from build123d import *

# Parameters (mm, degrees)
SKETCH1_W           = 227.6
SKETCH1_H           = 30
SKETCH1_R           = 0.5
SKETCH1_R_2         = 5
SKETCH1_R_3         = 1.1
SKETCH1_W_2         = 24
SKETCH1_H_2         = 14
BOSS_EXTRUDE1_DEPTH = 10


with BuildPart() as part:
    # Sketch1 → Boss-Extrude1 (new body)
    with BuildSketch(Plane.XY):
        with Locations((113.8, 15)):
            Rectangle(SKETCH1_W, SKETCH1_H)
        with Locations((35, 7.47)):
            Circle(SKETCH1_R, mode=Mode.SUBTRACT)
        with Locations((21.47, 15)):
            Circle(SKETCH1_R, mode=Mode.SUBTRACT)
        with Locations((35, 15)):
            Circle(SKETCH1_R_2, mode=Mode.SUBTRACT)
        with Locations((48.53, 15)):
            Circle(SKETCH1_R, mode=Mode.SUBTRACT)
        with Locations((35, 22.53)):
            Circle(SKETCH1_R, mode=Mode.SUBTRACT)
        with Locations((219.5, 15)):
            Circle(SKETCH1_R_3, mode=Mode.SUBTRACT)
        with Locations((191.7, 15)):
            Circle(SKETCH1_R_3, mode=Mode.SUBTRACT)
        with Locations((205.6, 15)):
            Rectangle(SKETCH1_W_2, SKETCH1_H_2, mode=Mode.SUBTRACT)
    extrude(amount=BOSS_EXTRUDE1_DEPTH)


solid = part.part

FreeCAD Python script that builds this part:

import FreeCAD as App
import Part
import Sketcher


def add_polygon(sketch, points):
    """Adds a closed chain of lines whose ends are joined by coincident constraints."""
    first, n = sketch.GeometryCount, len(points)
    for a, b in zip(points, points[1:] + points[:1]):
        sketch.addGeometry(Part.LineSegment(App.Vector(*a, 0), App.Vector(*b, 0)), False)
    for i in range(n):
        sketch.addConstraint(Sketcher.Constraint("Coincident", first + i, 2, first + (i + 1) % n, 1))

doc = App.newDocument("Part")
body = doc.addObject("PartDesign::Body", "Body")

sketch1 = body.newObject("Sketcher::SketchObject", "Sketch")
sketch1.AttachmentSupport = (doc.getObject("XY_Plane"), [""])
sketch1.MapMode = "FlatFace"
add_polygon(sketch1, [(0, 30), (0, 0), (227.6, 0), (227.6, 30)])
sketch1.addGeometry(Part.Circle(App.Vector(35, 7.5, 0), App.Vector(0, 0, 1), 0.5), False)
sketch1.addGeometry(Part.Circle(App.Vector(21.5, 15, 0), App.Vector(0, 0, 1), 0.5), False)
sketch1.addGeometry(Part.Circle(App.Vector(35, 15, 0), App.Vector(0, 0, 1), 5), False)
sketch1.addGeometry(Part.Circle(App.Vector(48.5, 15, 0), App.Vector(0, 0, 1), 0.5), False)
sketch1.addGeometry(Part.Circle(App.Vector(35, 22.5, 0), App.Vector(0, 0, 1), 0.5), False)
sketch1.addGeometry(Part.Circle(App.Vector(191.7, 15, 0), App.Vector(0, 0, 1), 1.1), False)
add_polygon(sketch1, [(217.6, 8), (193.6, 8), (193.6, 22), (217.6, 22)])
sketch1.addGeometry(Part.Circle(App.Vector(219.5, 15, 0), App.Vector(0, 0, 1), 1.1), False)
sketch1.addConstraint([
    Sketcher.Constraint("Vertical", 0),
    Sketcher.Constraint("Horizontal", 1),
    Sketcher.Constraint("Vertical", 2),
    Sketcher.Constraint("Horizontal", 3),
    Sketcher.Constraint("Horizontal", 10),
    Sketcher.Constraint("Vertical", 11),
    Sketcher.Constraint("Horizontal", 12),
    Sketcher.Constraint("Vertical", 13),
    Sketcher.Constraint("Coincident", 0, 2, -1, 1),
    Sketcher.Constraint("Equal", 4, 5),
    Sketcher.Constraint("Equal", 5, 7),
    Sketcher.Constraint("Equal", 7, 8),
    Sketcher.Constraint("Equal", 9, 14),
    Sketcher.Constraint("Horizontal", 5, 3, 6, 3),
    Sketcher.Constraint("Horizontal", 6, 3, 7, 3),
    Sketcher.Constraint("Horizontal", 7, 3, 9, 3),
    Sketcher.Constraint("Horizontal", 9, 3, 14, 3),
    Sketcher.Constraint("Vertical", 4, 3, 6, 3),
    Sketcher.Constraint("Vertical", 6, 3, 8, 3),
    Sketcher.Constraint("Diameter", 4, 1.0),
    Sketcher.Constraint("Diameter", 6, 10.0),
    Sketcher.Constraint("Diameter", 9, 2.2),
    Sketcher.Constraint("DistanceX", 10, 2, 10, 1, 24.0),
    Sketcher.Constraint("DistanceY", 0, 2, 0, 1, 30.0),
    Sketcher.Constraint("DistanceY", 11, 1, 11, 2, 14.0),
    Sketcher.Constraint("DistanceX", 1, 1, 1, 2, 227.6),
    Sketcher.Constraint("DistanceX", -1, 1, 4, 3, 35.0),
    Sketcher.Constraint("DistanceY", -1, 1, 5, 3, 15.0),
    Sketcher.Constraint("DistanceY", -1, 1, 10, 2, 8.0),
    Sketcher.Constraint("DistanceX", 10, 2, 1, 2, 34.0),
    Sketcher.Constraint("DistanceX", -1, 1, 9, 3, 191.7),
    Sketcher.Constraint("DistanceX", -1, 1, 14, 3, 219.5),
    Sketcher.Constraint("DistanceY", -1, 1, 4, 3, 7.47),
    Sketcher.Constraint("DistanceX", -1, 1, 5, 3, 21.47),
    Sketcher.Constraint("DistanceX", -1, 1, 7, 3, 48.53),
    Sketcher.Constraint("DistanceY", -1, 1, 8, 3, 22.53),
])
pad1 = body.newObject("PartDesign::Pad", "Pad")
pad1.Profile = sketch1
pad1.Length = 10

doc.recompute()
